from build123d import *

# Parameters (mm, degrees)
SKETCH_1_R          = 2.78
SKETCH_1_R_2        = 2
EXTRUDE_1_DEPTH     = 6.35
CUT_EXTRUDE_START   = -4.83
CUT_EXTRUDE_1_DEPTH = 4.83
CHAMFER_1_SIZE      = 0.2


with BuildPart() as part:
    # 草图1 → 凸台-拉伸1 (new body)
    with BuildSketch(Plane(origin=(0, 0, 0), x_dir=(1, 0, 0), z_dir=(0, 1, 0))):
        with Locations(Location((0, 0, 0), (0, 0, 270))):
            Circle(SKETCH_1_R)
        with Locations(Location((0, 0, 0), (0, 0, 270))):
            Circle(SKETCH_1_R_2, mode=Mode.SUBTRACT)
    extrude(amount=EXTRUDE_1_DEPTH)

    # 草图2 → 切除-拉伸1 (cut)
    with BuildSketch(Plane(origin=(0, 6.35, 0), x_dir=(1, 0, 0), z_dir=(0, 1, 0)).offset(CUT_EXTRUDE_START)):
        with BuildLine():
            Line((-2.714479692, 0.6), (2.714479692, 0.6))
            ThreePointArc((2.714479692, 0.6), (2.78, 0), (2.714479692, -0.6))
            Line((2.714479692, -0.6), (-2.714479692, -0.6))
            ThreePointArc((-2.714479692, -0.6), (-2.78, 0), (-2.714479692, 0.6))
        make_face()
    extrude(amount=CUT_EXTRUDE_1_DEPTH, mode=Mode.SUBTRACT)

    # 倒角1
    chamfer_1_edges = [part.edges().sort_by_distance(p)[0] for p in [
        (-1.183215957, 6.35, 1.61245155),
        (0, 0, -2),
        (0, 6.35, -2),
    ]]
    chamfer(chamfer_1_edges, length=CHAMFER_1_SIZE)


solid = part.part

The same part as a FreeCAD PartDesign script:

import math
import FreeCAD as App
import Part
import Sketcher
Q = App.Units.Quantity


def edges_at(feature, points):
    """Names of the edges that pass closest to the given points."""
    edges = feature.Shape.Edges
    near = lambda p: min(range(len(edges)), key=lambda i: edges[i].distToShape(Part.Vertex(*p))[0])
    return sorted({f"Edge{near(p) + 1}" for p in points})

doc = App.newDocument("Part")
params = doc.addObject("Spreadsheet::Sheet", "Params")
for row, (alias, value) in enumerate([
    ("sketch1_diameter", "4 mm"),
    ("sketch1_diameter2", "5.56 mm"),
    ("pad1_length", "6.35 mm"),
    ("sketch2_radius", "2.78 mm"),
    ("pocket1_length", "4.83 mm"),
    ("chamfer_size", "0.2 mm"),
], start=1):
    params.set(f"A{row}", alias)
    params.set(f"B{row}", "=" + value)
    params.setAlias(f"B{row}", alias)

body = doc.addObject("PartDesign::Body", "Body")

# Sketch on XZ plane
sketch1 = body.newObject("Sketcher::SketchObject", "Sketch")
sketch1.AttachmentSupport = (doc.getObject("XZ_Plane"), [""])
sketch1.MapMode = "FlatFace"
sketch1.addGeometry(Part.Circle(App.Vector(0, 0, 0), App.Vector(0, 0, 1), 2.8), False)
sketch1.addGeometry(Part.Circle(App.Vector(0, 0, 0), App.Vector(0, 0, 1), 2), False)
sketch1.addConstraint(Sketcher.Constraint("Coincident", 0, 3, -1, 1))
sketch1.addConstraint(Sketcher.Constraint("Coincident", 1, 3, -1, 1))
sketch1.addConstraint(Sketcher.Constraint("Diameter", 1, Q("4 mm")))
sketch1.addConstraint(Sketcher.Constraint("Diameter", 0, Q("5.56 mm")))
sketch1.setExpression("Constraints[2]", "Params.sketch1_diameter")
sketch1.setExpression("Constraints[3]", "Params.sketch1_diameter2")
pad1 = body.newObject("PartDesign::Pad", "Pad")
pad1.Profile = sketch1
pad1.setExpression("Length", "Params.pad1_length")
pad1.Reversed = True

# Sketch on XZ plane
sketch2 = body.newObject("Sketcher::SketchObject", "Sketch001")
sketch2.AttachmentSupport = (doc.getObject("XZ_Plane"), [""])
sketch2.MapMode = "FlatFace"
sketch2.AttachmentOffset = App.Placement(App.Vector(0, 0, -1.52), App.Rotation())
sketch2.addGeometry(Part.LineSegment(App.Vector(2.7, -0.6, 0), App.Vector(-2.7, -0.6, 0)), False)
sketch2.addGeometry(Part.ArcOfCircle(Part.Circle(App.Vector(0, 0, 0), App.Vector(0, 0, 1), 2.8), math.radians(168), math.radians(192)), False)
sketch2.addGeometry(Part.LineSegment(App.Vector(-2.7, 0.6, 0), App.Vector(2.7, 0.6, 0)), False)
sketch2.addGeometry(Part.ArcOfCircle(Part.Circle(App.Vector(0, 0, 0), App.Vector(0, 0, 1), 2.8), math.radians(-12), math.radians(12)), False)
sketch2.addConstraint(Sketcher.Constraint("Coincident", 0, 2, 1, 2))
sketch2.addConstraint(Sketcher.Constraint("Coincident", 1, 1, 2, 1))
sketch2.addConstraint(Sketcher.Constraint("Coincident", 2, 2, 3, 2))
sketch2.addConstraint(Sketcher.Constraint("Coincident", 3, 1, 0, 1))
sketch2.addConstraint(Sketcher.Constraint("Horizontal", 0))
sketch2.addConstraint(Sketcher.Constraint("Horizontal", 2))
sketch2.addConstraint(Sketcher.Constraint("Coincident", 1, 3, -1, 1))
sketch2.addConstraint(Sketcher.Constraint("Coincident", 3, 3, -1, 1))
sketch2.addConstraint(Sketcher.Constraint("Equal", 1, 3))
sketch2.addConstraint(Sketcher.Constraint("Vertical", 0, 2, 1, 1))
sketch2.addConstraint(Sketcher.Constraint("Radius", 1, Q("2.78 mm")))
sketch2.addConstraint(Sketcher.Constraint("DistanceY", 0, 2, -1, 1, Q("0.6 mm")))
sketch2.setExpression("Constraints[10]", "Params.sketch2_radius")
pocket1 = body.newObject("PartDesign::Pocket", "Pocket")
pocket1.Profile = sketch2
pocket1.setExpression("Length", "Params.pocket1_length")
doc.recompute()

chamfer = body.newObject("PartDesign::Chamfer", "Chamfer")
chamfer.Base = (pocket1, edges_at(pocket1, [(-1.183, 6.35, 1.612), (0, 0, -2), (0, 6.35, -2)]))
chamfer.setExpression("Size", "Params.chamfer_size")

doc.recompute()
